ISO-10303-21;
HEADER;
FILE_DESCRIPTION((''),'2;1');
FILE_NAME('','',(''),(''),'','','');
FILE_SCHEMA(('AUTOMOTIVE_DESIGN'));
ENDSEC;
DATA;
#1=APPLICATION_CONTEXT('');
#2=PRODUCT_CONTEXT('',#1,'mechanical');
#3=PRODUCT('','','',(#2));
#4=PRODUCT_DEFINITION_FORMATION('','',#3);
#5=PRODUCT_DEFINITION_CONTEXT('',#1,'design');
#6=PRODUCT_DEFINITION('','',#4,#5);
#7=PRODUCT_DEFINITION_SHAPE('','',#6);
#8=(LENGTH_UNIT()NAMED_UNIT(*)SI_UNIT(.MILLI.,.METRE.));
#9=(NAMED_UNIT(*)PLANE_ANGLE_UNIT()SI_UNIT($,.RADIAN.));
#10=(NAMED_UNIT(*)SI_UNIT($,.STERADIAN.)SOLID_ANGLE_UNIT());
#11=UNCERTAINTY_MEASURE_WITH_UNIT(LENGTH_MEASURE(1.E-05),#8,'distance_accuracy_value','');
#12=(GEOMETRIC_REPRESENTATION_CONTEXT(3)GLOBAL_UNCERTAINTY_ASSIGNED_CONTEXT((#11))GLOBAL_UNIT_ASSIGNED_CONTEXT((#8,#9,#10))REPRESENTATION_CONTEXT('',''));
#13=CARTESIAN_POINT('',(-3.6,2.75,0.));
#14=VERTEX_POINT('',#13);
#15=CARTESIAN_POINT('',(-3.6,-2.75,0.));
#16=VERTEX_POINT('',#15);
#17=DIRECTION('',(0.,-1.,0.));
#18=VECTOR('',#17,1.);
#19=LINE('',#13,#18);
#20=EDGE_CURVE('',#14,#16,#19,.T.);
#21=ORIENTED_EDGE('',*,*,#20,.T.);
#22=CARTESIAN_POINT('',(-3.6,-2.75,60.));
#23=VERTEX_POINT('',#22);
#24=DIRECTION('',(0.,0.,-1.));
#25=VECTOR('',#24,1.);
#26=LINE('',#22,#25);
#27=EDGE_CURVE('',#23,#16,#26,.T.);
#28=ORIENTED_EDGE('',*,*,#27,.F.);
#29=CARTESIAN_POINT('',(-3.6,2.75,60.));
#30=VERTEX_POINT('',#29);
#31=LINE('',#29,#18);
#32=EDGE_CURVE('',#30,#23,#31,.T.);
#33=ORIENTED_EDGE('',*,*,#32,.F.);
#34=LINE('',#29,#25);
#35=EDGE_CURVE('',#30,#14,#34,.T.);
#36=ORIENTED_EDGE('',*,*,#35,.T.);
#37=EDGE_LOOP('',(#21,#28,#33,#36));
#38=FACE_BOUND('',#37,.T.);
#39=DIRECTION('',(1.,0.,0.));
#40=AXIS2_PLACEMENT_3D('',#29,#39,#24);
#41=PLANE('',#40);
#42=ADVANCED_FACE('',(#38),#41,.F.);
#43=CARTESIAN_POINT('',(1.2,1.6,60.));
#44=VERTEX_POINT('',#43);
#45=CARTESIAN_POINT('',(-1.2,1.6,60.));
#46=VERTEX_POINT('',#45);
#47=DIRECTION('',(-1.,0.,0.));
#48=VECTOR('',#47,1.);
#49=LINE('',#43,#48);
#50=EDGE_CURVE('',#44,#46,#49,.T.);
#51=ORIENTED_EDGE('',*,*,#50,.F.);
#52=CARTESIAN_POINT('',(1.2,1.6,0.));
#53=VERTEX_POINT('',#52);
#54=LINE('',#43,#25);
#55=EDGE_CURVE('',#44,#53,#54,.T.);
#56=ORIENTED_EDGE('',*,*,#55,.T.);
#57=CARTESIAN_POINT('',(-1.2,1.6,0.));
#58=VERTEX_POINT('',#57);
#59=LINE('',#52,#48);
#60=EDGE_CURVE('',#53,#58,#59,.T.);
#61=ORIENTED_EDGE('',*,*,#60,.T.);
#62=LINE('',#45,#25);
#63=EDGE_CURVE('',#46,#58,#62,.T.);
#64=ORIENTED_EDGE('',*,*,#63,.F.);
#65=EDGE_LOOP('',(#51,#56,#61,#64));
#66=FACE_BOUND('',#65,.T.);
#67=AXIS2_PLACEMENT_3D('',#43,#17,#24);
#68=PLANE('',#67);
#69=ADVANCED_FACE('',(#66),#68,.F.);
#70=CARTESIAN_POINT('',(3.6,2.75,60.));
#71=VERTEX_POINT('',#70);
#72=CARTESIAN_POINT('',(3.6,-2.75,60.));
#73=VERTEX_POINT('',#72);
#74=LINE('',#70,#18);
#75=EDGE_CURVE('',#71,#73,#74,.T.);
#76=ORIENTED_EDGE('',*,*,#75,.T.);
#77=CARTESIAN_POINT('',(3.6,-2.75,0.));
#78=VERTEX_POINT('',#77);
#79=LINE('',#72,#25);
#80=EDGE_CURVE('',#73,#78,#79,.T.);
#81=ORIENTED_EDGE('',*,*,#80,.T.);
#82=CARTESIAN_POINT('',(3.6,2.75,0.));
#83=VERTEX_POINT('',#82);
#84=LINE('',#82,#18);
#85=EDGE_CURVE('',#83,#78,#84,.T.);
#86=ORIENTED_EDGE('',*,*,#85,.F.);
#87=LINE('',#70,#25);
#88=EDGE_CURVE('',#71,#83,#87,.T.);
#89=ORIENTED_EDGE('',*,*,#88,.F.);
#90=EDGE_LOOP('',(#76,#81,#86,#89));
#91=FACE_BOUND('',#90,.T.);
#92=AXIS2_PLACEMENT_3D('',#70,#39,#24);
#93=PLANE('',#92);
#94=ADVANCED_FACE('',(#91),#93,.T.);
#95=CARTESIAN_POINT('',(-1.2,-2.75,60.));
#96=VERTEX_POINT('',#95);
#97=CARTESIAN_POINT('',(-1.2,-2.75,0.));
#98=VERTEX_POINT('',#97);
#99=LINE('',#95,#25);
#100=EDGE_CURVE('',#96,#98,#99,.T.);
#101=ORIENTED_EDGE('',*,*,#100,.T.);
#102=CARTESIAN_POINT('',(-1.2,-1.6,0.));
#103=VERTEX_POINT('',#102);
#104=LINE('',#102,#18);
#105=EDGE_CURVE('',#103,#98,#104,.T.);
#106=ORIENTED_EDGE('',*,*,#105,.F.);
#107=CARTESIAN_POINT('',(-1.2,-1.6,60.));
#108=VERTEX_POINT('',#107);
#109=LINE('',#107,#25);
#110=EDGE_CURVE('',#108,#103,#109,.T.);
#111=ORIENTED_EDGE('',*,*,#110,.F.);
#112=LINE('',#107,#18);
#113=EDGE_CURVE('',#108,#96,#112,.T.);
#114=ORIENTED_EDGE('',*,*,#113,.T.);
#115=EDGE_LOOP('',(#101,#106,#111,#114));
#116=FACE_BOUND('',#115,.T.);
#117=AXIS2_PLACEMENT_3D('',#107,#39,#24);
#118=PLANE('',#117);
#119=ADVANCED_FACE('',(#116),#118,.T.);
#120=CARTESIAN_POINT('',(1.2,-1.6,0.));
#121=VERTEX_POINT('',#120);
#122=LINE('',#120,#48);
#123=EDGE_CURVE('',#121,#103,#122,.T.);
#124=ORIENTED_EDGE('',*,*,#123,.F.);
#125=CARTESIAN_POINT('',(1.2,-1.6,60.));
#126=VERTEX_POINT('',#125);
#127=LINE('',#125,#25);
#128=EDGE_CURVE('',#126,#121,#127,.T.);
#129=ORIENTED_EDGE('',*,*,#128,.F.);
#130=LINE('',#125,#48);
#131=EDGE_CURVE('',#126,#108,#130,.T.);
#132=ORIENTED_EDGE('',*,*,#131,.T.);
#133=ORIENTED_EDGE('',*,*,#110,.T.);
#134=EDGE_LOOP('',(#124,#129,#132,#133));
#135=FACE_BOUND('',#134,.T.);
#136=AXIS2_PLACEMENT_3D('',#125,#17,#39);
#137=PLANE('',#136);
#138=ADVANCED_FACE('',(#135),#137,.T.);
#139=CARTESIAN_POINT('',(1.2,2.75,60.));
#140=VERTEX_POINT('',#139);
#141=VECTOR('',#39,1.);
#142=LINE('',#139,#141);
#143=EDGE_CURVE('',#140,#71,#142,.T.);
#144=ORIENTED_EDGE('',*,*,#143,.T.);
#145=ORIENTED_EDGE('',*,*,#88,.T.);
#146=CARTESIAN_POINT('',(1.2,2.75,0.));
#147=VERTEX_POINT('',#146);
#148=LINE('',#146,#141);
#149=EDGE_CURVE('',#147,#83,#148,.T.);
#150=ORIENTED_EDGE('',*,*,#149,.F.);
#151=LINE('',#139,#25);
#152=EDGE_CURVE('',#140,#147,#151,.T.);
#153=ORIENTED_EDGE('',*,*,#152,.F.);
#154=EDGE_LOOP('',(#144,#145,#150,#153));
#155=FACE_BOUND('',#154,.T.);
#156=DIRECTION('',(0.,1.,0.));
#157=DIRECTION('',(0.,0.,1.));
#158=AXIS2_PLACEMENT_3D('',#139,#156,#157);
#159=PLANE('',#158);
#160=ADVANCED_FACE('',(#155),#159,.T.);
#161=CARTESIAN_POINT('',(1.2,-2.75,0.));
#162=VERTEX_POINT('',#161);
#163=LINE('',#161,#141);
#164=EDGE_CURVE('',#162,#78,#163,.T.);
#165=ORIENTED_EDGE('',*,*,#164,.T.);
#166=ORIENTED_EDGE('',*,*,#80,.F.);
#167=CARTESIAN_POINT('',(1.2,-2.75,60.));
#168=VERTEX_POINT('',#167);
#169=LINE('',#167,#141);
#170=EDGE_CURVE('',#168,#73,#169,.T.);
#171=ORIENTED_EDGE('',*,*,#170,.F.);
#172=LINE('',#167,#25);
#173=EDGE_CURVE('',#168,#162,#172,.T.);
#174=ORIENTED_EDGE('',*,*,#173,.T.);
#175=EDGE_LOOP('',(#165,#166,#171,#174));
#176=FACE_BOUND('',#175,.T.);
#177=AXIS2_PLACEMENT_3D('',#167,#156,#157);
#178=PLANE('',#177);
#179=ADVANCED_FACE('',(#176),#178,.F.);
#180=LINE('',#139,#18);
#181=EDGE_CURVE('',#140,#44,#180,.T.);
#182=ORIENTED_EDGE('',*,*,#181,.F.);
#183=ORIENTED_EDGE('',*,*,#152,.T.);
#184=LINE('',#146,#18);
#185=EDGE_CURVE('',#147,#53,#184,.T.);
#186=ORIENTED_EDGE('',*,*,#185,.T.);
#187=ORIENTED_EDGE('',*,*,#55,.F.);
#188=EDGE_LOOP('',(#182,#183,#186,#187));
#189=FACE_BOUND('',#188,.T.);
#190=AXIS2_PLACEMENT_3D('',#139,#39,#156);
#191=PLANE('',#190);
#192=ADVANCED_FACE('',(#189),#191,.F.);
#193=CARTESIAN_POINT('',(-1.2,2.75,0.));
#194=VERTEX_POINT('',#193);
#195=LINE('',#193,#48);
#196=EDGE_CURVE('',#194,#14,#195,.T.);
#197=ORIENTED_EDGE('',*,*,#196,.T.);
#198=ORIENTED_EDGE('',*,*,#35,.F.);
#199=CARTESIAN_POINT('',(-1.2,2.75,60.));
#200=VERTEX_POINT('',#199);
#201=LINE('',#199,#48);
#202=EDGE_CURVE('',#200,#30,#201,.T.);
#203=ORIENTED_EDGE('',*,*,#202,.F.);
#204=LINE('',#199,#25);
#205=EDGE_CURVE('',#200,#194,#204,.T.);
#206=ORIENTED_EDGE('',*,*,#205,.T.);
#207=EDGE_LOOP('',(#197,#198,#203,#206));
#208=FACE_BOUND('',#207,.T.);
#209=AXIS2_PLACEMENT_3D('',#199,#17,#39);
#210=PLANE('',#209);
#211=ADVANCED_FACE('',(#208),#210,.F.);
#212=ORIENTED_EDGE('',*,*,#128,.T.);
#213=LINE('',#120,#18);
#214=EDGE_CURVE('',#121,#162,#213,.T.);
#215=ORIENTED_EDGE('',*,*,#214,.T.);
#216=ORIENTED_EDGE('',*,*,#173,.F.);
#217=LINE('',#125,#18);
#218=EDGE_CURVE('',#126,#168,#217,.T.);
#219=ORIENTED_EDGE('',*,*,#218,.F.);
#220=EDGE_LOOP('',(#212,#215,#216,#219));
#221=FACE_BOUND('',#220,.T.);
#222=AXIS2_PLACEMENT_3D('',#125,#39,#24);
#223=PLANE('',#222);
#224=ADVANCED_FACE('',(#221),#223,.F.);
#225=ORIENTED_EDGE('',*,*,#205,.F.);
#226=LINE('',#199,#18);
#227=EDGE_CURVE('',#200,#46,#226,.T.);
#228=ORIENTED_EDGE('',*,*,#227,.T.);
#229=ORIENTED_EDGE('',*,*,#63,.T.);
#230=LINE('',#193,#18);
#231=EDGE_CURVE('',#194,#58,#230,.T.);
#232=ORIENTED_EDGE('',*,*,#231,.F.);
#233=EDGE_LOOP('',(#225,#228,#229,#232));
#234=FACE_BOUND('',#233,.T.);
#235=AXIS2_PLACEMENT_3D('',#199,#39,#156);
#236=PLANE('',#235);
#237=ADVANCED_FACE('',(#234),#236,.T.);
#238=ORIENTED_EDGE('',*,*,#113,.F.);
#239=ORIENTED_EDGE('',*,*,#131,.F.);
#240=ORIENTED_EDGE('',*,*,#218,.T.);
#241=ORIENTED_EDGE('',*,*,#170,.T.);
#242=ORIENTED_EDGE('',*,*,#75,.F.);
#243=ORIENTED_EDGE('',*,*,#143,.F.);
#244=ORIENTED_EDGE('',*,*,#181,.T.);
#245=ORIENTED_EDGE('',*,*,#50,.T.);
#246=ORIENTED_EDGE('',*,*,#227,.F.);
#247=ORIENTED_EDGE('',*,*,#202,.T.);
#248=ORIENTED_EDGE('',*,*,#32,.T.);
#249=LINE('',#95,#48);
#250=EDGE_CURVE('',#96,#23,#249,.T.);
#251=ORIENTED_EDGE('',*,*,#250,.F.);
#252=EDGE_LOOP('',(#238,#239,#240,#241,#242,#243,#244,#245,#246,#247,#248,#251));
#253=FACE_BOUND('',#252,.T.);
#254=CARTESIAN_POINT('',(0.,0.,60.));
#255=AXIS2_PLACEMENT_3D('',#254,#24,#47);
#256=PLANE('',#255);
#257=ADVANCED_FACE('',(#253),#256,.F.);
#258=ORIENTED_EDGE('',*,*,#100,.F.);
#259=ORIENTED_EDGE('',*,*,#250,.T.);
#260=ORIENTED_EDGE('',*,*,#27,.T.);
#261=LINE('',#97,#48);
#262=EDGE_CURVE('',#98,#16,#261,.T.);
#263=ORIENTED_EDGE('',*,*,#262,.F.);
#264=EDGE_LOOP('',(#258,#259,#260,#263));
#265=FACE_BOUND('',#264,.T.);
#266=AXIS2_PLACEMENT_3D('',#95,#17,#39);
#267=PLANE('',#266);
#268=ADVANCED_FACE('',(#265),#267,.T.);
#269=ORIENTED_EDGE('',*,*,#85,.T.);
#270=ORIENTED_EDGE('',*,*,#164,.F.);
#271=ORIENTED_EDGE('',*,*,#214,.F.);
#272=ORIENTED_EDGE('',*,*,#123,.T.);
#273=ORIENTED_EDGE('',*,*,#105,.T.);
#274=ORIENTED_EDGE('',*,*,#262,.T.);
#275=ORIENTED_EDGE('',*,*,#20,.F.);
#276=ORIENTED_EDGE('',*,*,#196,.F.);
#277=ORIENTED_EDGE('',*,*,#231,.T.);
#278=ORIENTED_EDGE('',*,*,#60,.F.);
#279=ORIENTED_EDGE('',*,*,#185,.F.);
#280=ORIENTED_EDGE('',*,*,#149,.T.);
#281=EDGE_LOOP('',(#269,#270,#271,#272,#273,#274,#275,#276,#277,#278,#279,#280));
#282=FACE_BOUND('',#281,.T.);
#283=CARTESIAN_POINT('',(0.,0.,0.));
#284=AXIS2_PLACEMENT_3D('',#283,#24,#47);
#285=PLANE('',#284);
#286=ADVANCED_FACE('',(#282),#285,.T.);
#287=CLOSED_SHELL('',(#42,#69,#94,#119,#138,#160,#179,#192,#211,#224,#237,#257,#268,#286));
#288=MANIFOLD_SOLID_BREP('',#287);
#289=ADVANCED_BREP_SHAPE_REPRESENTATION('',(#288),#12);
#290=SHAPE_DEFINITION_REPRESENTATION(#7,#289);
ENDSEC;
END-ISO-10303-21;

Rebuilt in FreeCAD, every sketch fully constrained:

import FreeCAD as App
import Part
import Sketcher

V = App.Vector
Q = App.Units.Quantity

doc = App.newDocument("Part")
body = doc.addObject("PartDesign::Body", "Body")

# Sketch on XY plane
sketch1 = body.newObject("Sketcher::SketchObject", "Sketch")
sketch1.AttachmentSupport = (doc.getObject("XY_Plane"), [""])
sketch1.MapMode = "FlatFace"
sketch1.addGeometry(Part.LineSegment(V(-1.2, 2.8, 0), V(-3.6, 2.8, 0)), False)
sketch1.addGeometry(Part.LineSegment(V(-3.6, 2.8, 0), V(-3.6, -2.8, 0)), False)
sketch1.addGeometry(Part.LineSegment(V(-3.6, -2.8, 0), V(-1.2, -2.8, 0)), False)
sketch1.addGeometry(Part.LineSegment(V(-1.2, -2.8, 0), V(-1.2, -1.6, 0)), False)
sketch1.addGeometry(Part.LineSegment(V(-1.2, -1.6, 0), V(1.2, -1.6, 0)), False)
sketch1.addGeometry(Part.LineSegment(V(1.2, -1.6, 0), V(1.2, -2.8, 0)), False)
sketch1.addGeometry(Part.LineSegment(V(1.2, -2.8, 0), V(3.6, -2.8, 0)), False)
sketch1.addGeometry(Part.LineSegment(V(3.6, -2.8, 0), V(3.6, 2.8, 0)), False)
sketch1.addGeometry(Part.LineSegment(V(3.6, 2.8, 0), V(1.2, 2.8, 0)), False)
sketch1.addGeometry(Part.LineSegment(V(1.2, 2.8, 0), V(1.2, 1.6, 0)), False)
sketch1.addGeometry(Part.LineSegment(V(1.2, 1.6, 0), V(-1.2, 1.6, 0)), False)
sketch1.addGeometry(Part.LineSegment(V(-1.2, 1.6, 0), V(-1.2, 2.8, 0)), False)
sketch1.addConstraint(Sketcher.Constraint("Coincident", 0, 2, 1, 1))
sketch1.addConstraint(Sketcher.Constraint("Coincident", 1, 2, 2, 1))
sketch1.addConstraint(Sketcher.Constraint("Coincident", 2, 2, 3, 1))
sketch1.addConstraint(Sketcher.Constraint("Coincident", 3, 2, 4, 1))
sketch1.addConstraint(Sketcher.Constraint("Coincident", 4, 2, 5, 1))
sketch1.addConstraint(Sketcher.Constraint("Coincident", 5, 2, 6, 1))
sketch1.addConstraint(Sketcher.Constraint("Coincident", 6, 2, 7, 1))
sketch1.addConstraint(Sketcher.Constraint("Coincident", 7, 2, 8, 1))
sketch1.addConstraint(Sketcher.Constraint("Coincident", 8, 2, 9, 1))
sketch1.addConstraint(Sketcher.Constraint("Coincident", 9, 2, 10, 1))
sketch1.addConstraint(Sketcher.Constraint("Coincident", 10, 2, 11, 1))
sketch1.addConstraint(Sketcher.Constraint("Coincident", 11, 2, 0, 1))
sketch1.addConstraint(Sketcher.Constraint("Horizontal", 0))
sketch1.addConstraint(Sketcher.Constraint("Vertical", 1))
sketch1.addConstraint(Sketcher.Constraint("Horizontal", 2))
sketch1.addConstraint(Sketcher.Constraint("Vertical", 3))
sketch1.addConstraint(Sketcher.Constraint("Horizontal", 4))
sketch1.addConstraint(Sketcher.Constraint("Vertical", 5))
sketch1.addConstraint(Sketcher.Constraint("Horizontal", 6))
sketch1.addConstraint(Sketcher.Constraint("Vertical", 7))
sketch1.addConstraint(Sketcher.Constraint("Horizontal", 8))
sketch1.addConstraint(Sketcher.Constraint("Vertical", 9))
sketch1.addConstraint(Sketcher.Constraint("Horizontal", 10))
sketch1.addConstraint(Sketcher.Constraint("Vertical", 11))
sketch1.addConstraint(Sketcher.Constraint("Symmetric", 0, 2, 6, 2, -1, 1))
sketch1.addConstraint(Sketcher.Constraint("Symmetric", 2, 2, 8, 2, -1, 1))
sketch1.addConstraint(Sketcher.Constraint("Symmetric", 4, 2, 10, 2, -1, 1))
sketch1.addConstraint(Sketcher.Constraint("Symmetric", 2, 2, 5, 2, -2))
sketch1.addConstraint(Sketcher.Constraint("Equal", 2, 4))
sketch1.addConstraint(Sketcher.Constraint("DistanceX", 0, 2, 0, 1, Q("2.4 mm")))
sketch1.addConstraint(Sketcher.Constraint("DistanceY", 1, 2, 1, 1, Q("5.5 mm")))
sketch1.addConstraint(Sketcher.Constraint("DistanceY", 3, 1, 3, 2, Q("1.15 mm")))
pad1 = body.newObject("PartDesign::Pad", "Pad")
pad1.Profile = sketch1
pad1.Length = 60

doc.recompute()
